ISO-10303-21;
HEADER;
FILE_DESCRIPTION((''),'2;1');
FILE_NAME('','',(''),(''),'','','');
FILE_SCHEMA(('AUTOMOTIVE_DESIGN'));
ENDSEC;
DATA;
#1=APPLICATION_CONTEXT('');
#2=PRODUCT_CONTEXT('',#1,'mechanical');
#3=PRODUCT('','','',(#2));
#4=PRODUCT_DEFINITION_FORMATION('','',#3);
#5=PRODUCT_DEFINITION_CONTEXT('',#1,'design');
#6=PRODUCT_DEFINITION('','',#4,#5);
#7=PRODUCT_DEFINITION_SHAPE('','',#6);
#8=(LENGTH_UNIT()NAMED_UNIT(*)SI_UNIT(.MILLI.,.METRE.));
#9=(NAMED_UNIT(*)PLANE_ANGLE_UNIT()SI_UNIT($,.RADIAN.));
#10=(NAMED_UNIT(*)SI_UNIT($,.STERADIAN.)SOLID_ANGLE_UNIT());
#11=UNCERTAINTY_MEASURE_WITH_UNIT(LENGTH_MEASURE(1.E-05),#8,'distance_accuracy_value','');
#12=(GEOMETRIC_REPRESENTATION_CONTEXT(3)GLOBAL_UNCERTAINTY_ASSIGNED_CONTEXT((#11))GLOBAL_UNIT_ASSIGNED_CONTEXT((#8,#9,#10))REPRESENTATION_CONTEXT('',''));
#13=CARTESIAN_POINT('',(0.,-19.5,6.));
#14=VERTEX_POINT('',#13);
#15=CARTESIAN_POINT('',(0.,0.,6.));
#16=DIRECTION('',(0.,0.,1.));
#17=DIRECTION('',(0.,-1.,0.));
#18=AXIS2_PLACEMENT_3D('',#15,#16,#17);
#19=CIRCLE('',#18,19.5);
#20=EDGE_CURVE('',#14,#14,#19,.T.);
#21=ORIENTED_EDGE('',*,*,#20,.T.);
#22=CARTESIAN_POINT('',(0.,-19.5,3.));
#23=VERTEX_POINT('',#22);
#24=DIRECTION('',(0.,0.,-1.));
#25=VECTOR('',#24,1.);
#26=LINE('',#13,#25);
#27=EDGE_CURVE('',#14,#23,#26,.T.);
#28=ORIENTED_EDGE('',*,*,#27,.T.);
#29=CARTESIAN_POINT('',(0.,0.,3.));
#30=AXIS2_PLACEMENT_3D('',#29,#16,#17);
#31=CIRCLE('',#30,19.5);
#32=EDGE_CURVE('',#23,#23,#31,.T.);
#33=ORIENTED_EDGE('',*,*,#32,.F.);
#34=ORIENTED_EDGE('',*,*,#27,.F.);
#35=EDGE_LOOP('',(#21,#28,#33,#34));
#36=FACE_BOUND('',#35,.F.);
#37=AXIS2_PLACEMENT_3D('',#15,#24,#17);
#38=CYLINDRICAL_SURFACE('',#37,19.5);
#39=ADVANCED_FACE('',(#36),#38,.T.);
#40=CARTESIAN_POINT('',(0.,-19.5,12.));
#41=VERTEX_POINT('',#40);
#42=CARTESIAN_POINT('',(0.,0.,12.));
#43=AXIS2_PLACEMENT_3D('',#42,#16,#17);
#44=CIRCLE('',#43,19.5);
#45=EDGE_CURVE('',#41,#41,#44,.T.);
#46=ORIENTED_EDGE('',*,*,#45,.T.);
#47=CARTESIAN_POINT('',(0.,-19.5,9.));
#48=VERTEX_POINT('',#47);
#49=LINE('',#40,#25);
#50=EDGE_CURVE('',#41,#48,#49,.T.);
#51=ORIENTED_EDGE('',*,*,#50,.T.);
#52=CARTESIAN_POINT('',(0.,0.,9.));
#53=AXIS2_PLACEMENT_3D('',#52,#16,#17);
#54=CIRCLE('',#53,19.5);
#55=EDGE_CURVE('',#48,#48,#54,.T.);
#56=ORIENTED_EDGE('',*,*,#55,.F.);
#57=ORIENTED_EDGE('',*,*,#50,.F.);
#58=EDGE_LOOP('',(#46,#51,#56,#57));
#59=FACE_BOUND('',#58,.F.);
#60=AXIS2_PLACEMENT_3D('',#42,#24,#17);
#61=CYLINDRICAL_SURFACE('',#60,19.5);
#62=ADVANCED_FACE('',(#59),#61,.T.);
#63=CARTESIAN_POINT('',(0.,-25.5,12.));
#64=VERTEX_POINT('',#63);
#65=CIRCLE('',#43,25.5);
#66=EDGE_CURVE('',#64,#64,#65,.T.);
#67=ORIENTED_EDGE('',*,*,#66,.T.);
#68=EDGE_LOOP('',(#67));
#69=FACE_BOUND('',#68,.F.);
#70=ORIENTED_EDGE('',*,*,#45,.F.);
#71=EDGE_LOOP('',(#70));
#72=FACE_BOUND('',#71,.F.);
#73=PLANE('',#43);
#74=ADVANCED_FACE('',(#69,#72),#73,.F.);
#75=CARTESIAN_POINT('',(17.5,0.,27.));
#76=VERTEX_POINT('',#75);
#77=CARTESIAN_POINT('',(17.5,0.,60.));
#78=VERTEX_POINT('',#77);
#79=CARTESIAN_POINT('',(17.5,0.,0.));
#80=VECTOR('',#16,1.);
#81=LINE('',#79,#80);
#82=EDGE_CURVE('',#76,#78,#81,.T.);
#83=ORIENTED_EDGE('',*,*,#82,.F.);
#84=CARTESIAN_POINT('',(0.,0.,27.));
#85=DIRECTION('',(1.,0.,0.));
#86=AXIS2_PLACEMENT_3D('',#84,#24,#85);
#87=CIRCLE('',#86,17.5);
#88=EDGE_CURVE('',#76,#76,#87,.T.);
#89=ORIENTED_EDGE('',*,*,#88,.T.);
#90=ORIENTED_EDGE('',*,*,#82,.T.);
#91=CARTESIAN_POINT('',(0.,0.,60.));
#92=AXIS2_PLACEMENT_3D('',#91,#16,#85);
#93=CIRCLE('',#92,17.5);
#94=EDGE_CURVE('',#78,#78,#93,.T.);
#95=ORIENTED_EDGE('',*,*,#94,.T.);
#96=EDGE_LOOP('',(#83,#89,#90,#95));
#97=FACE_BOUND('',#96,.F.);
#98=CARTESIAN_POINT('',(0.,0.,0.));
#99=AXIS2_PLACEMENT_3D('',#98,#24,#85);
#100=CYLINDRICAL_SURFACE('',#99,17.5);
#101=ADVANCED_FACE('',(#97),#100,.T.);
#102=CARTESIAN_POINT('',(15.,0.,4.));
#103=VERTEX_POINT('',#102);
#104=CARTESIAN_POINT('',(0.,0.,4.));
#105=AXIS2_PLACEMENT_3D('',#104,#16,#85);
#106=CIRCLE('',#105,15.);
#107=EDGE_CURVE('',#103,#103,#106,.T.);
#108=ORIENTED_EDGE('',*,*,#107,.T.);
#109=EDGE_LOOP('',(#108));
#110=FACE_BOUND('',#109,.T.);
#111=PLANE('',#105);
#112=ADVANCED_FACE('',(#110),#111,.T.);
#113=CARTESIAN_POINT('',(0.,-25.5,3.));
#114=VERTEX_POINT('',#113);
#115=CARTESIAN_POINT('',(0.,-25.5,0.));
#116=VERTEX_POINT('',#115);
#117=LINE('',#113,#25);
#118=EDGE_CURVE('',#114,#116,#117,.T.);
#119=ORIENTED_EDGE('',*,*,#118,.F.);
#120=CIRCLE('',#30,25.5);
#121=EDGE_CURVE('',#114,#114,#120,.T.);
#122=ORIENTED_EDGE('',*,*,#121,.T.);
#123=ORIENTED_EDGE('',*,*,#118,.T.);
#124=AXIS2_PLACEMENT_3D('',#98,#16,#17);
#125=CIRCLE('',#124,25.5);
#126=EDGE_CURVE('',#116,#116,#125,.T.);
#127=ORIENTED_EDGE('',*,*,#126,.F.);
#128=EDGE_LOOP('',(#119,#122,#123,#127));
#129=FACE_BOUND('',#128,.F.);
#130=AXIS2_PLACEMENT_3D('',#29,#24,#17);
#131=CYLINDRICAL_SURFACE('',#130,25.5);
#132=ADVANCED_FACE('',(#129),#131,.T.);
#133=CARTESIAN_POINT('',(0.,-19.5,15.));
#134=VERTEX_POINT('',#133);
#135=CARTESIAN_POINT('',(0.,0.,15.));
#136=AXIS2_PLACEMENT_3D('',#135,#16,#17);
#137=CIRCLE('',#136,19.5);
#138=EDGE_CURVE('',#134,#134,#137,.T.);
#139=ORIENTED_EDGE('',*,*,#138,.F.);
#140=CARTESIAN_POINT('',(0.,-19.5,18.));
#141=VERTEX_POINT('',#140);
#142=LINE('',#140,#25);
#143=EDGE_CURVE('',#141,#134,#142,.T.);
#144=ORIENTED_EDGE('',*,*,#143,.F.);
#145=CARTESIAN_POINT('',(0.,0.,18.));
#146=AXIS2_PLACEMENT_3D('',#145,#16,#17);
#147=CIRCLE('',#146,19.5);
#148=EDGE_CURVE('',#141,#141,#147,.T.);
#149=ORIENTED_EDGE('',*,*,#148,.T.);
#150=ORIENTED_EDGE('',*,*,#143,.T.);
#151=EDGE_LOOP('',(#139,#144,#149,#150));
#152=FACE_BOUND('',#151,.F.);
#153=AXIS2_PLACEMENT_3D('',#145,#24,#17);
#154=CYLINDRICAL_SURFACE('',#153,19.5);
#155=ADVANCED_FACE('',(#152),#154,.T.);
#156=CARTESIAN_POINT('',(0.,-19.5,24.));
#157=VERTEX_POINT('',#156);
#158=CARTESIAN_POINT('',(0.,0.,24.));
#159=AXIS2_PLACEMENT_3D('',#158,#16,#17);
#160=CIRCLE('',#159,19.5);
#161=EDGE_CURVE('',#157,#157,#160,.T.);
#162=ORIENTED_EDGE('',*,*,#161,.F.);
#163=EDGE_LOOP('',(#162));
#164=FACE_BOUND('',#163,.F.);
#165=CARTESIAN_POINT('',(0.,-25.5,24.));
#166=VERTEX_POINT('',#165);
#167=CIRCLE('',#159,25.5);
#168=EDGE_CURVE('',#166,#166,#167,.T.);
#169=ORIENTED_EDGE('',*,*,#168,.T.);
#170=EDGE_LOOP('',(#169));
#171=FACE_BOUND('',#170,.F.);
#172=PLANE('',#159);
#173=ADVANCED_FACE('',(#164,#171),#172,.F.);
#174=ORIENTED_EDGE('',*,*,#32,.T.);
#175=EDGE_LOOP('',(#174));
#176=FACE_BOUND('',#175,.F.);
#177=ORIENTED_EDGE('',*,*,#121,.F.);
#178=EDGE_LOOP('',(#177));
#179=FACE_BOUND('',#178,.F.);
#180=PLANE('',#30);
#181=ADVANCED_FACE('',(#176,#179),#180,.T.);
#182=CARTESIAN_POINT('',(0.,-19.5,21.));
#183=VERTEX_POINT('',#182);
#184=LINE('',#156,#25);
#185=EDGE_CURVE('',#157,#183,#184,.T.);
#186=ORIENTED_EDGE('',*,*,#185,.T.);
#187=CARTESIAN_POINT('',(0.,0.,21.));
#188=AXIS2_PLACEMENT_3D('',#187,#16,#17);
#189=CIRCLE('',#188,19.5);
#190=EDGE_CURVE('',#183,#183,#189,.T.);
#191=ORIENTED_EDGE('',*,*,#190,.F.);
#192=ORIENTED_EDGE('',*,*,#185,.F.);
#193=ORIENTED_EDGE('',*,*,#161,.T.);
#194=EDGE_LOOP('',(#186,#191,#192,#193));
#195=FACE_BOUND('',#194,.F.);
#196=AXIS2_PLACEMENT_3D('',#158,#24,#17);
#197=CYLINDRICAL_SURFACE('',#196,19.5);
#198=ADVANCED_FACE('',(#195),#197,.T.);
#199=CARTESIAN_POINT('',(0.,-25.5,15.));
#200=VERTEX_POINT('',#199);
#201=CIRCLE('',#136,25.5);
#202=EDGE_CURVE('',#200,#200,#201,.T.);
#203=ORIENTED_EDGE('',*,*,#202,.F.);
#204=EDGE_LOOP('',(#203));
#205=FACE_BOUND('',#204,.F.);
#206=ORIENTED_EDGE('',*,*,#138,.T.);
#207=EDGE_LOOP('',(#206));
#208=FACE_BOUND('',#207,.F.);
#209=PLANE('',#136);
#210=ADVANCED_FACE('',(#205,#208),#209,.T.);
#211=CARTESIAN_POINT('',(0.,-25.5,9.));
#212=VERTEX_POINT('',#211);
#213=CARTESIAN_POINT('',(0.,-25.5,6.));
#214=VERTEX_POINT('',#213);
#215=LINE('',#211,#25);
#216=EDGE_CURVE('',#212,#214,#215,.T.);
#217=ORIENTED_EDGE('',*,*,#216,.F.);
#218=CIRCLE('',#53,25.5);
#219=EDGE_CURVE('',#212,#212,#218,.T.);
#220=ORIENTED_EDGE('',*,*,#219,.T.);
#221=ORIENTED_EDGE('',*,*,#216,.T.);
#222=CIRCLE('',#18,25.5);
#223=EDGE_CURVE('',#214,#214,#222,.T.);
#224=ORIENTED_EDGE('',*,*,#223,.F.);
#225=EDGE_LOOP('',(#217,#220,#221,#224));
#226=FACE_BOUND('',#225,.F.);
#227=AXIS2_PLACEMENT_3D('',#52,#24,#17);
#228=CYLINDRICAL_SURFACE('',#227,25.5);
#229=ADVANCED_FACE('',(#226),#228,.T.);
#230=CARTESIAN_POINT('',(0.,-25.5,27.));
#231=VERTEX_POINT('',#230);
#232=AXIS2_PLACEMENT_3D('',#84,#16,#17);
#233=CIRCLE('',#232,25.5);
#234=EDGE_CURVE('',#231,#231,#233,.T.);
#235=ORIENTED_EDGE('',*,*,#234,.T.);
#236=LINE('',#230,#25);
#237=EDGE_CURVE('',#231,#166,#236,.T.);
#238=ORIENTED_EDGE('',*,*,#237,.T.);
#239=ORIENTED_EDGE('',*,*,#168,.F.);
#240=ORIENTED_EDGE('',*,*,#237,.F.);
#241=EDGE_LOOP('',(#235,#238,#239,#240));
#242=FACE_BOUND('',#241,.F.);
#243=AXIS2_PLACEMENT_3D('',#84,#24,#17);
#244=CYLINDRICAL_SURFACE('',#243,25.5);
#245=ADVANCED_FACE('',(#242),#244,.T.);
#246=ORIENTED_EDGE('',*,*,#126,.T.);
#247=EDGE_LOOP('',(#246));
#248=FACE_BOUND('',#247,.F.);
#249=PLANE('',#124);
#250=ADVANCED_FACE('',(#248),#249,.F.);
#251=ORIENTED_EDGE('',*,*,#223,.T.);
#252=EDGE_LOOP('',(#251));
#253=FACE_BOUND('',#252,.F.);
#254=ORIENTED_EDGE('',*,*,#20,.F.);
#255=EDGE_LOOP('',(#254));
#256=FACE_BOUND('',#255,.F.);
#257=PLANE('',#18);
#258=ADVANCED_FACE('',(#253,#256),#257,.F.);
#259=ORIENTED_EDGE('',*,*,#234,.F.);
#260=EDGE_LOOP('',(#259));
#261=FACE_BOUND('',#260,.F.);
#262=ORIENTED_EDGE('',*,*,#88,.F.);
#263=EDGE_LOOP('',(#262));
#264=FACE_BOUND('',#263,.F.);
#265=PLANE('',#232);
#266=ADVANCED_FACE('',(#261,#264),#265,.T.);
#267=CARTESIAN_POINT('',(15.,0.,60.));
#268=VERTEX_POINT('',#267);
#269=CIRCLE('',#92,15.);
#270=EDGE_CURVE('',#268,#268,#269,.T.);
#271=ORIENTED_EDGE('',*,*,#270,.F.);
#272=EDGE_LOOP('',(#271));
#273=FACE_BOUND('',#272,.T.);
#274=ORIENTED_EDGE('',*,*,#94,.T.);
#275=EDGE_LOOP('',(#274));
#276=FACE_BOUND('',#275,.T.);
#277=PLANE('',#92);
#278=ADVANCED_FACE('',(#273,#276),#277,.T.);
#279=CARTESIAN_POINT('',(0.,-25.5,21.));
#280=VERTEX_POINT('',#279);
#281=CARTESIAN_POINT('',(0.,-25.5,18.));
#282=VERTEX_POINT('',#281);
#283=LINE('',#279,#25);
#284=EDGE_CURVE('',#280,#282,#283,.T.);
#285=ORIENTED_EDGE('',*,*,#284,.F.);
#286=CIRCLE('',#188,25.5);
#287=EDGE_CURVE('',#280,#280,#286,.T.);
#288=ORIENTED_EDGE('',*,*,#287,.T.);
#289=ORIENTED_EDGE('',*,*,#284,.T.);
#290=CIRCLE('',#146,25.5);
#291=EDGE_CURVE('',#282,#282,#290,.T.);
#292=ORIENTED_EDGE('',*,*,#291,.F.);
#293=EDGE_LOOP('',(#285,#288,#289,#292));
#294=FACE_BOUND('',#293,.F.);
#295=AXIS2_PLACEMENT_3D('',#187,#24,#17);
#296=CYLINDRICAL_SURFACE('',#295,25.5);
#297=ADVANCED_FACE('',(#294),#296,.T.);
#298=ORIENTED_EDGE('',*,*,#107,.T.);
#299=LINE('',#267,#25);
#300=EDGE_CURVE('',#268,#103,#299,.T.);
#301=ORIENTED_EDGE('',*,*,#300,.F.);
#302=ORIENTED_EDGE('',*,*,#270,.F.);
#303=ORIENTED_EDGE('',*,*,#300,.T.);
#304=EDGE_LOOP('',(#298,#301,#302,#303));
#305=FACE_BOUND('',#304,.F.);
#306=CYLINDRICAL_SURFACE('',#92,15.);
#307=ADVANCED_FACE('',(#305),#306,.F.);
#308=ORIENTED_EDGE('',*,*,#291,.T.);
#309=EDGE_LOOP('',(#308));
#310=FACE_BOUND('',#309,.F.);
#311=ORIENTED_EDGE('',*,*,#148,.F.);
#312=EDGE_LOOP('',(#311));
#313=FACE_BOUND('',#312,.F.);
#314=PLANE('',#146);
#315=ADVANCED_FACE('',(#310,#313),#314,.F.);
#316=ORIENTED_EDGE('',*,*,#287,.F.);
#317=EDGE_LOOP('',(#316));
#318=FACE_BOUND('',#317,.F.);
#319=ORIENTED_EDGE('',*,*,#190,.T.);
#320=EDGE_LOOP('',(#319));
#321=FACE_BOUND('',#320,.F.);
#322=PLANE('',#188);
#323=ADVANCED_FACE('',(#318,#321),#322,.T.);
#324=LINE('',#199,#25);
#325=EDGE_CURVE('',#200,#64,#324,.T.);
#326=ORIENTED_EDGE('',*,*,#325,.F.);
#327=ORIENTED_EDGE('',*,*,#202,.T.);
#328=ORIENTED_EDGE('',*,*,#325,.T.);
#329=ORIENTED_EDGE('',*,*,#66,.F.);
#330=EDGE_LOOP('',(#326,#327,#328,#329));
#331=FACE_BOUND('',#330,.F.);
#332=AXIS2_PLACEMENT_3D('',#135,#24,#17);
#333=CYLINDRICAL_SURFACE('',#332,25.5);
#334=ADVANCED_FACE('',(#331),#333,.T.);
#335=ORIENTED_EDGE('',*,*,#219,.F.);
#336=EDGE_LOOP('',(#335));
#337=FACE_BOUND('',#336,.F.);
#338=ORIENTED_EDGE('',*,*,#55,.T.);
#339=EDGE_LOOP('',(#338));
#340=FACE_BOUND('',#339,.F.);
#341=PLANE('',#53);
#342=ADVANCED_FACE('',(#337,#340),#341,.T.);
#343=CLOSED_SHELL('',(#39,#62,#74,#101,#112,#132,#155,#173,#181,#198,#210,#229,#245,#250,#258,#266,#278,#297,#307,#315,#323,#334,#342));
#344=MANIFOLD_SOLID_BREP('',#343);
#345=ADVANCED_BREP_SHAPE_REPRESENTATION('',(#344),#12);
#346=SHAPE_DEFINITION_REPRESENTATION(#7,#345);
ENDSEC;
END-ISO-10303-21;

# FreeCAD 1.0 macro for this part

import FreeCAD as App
import Part
import Sketcher
Q = App.Units.Quantity


def add_polygon(sketch, points):
    """Adds a closed chain of lines whose ends are joined by coincident constraints."""
    first, n = sketch.GeometryCount, len(points)
    for a, b in zip(points, points[1:] + points[:1]):
        sketch.addGeometry(Part.LineSegment(App.Vector(*a, 0), App.Vector(*b, 0)), False)
    for i in range(n):
        sketch.addConstraint(Sketcher.Constraint("Coincident", first + i, 2, first + (i + 1) % n, 1))

doc = App.newDocument("Part")
body = doc.addObject("PartDesign::Body", "Body")

# Sketch on XY plane
sketch1 = doc.addObject("Sketcher::SketchObject", "Sketch")
body.addObject(sketch1)
sketch1.AttachmentSupport = (doc.XY_Plane, [""])
sketch1.MapMode = "FlatFace"
sketch1.addGeometry(Part.Circle(App.Vector(0, 0, 0), App.Vector(0, 0, 1), 18), False)
sketch1.addConstraint(Sketcher.Constraint("Coincident", 0, 3, -1, 1))
sketch1.addConstraint(Sketcher.Constraint("Diameter", 0, Q("35 mm")))
pad1 = doc.addObject("PartDesign::Pad", "Pad")
body.addObject(pad1)
pad1.Profile = sketch1
pad1.Length = 60

# Sketch on XY plane
sketch2 = doc.addObject("Sketcher::SketchObject", "Sketch001")
body.addObject(sketch2)
sketch2.AttachmentSupport = (doc.XY_Plane, [""])
sketch2.MapMode = "FlatFace"
sketch2.AttachmentOffset = App.Placement(App.Vector(0, 0, 60), App.Rotation())
sketch2.addGeometry(Part.Circle(App.Vector(0, 0, 0), App.Vector(0, 0, 1), 15), False)
sketch2.addConstraint(Sketcher.Constraint("Coincident", 0, 3, -1, 1))
sketch2.addConstraint(Sketcher.Constraint("Diameter", 0, Q("30 mm")))
pocket1 = doc.addObject("PartDesign::Pocket", "Pocket")
body.addObject(pocket1)
pocket1.Profile = sketch2
pocket1.Length = 56

# Sketch on YZ plane
sketch3 = doc.addObject("Sketcher::SketchObject", "Sketch002")
body.addObject(sketch3)
sketch3.AttachmentSupport = (doc.YZ_Plane, [""])
sketch3.MapMode = "FlatFace"
add_polygon(sketch3, [(-25.5, 3), (-25.5, 0), (-17.5, 0), (-17.5, 27), (-25.5, 27), (-25.5, 24), (-19.5, 24), (-19.5, 21), (-25.5, 21), (-25.5, 18), (-19.5, 18), (-19.5, 15), (-25.5, 15), (-25.5, 12), (-19.5, 12), (-19.5, 9), (-25.5, 9), (-25.5, 6), (-19.5, 6), (-19.5, 3)])  # lines 0-19
sketch3.addConstraint(Sketcher.Constraint("Vertical", 0))
sketch3.addConstraint(Sketcher.Constraint("Horizontal", 1))
sketch3.addConstraint(Sketcher.Constraint("Vertical", 2))
sketch3.addConstraint(Sketcher.Constraint("Horizontal", 3))
sketch3.addConstraint(Sketcher.Constraint("Vertical", 4))
sketch3.addConstraint(Sketcher.Constraint("Horizontal", 5))
sketch3.addConstraint(Sketcher.Constraint("Vertical", 6))
sketch3.addConstraint(Sketcher.Constraint("Horizontal", 7))
sketch3.addConstraint(Sketcher.Constraint("Vertical", 8))
sketch3.addConstraint(Sketcher.Constraint("Horizontal", 9))
sketch3.addConstraint(Sketcher.Constraint("Vertical", 10))
sketch3.addConstraint(Sketcher.Constraint("Horizontal", 11))
sketch3.addConstraint(Sketcher.Constraint("Vertical", 12))
sketch3.addConstraint(Sketcher.Constraint("Horizontal", 13))
sketch3.addConstraint(Sketcher.Constraint("Vertical", 14))
sketch3.addConstraint(Sketcher.Constraint("Horizontal", 15))
sketch3.addConstraint(Sketcher.Constraint("Vertical", 16))
sketch3.addConstraint(Sketcher.Constraint("Horizontal", 17))
sketch3.addConstraint(Sketcher.Constraint("Vertical", 18))
sketch3.addConstraint(Sketcher.Constraint("Horizontal", 19))
sketch3.addConstraint(Sketcher.Constraint("PointOnObject", 0, 2, -1))
sketch3.addConstraint(Sketcher.Constraint("Vertical", 0, 2, 3, 2))
sketch3.addConstraint(Sketcher.Constraint("Vertical", 4, 2, 7, 2))
sketch3.addConstraint(Sketcher.Constraint("Vertical", 6, 2, 9, 2))
sketch3.addConstraint(Sketcher.Constraint("Vertical", 8, 2, 11, 2))
sketch3.addConstraint(Sketcher.Constraint("Vertical", 10, 2, 13, 2))
sketch3.addConstraint(Sketcher.Constraint("Vertical", 12, 2, 15, 2))
sketch3.addConstraint(Sketcher.Constraint("Vertical", 14, 2, 17, 2))
sketch3.addConstraint(Sketcher.Constraint("Equal", 0, 4))
sketch3.addConstraint(Sketcher.Constraint("Equal", 4, 6))
sketch3.addConstraint(Sketcher.Constraint("Equal", 6, 8))
sketch3.addConstraint(Sketcher.Constraint("Equal", 8, 10))
sketch3.addConstraint(Sketcher.Constraint("Equal", 10, 12))
sketch3.addConstraint(Sketcher.Constraint("Equal", 12, 14))
sketch3.addConstraint(Sketcher.Constraint("Equal", 14, 16))
sketch3.addConstraint(Sketcher.Constraint("Equal", 16, 18))
sketch3.addConstraint(Sketcher.Constraint("DistanceX", 1, 1, 1, 2, Q("8 mm")))
sketch3.addConstraint(Sketcher.Constraint("DistanceX", 5, 1, 5, 2, Q("6 mm")))
sketch3.addConstraint(Sketcher.Constraint("DistanceY", 0, 2, 0, 1, Q("3 mm")))
sketch3.addConstraint(Sketcher.Constraint("DistanceX", 0, 2, -1, 1, Q("25.5 mm")))
revolution = doc.addObject("PartDesign::Revolution", "Revolution")
body.addObject(revolution)
revolution.Profile = sketch3
revolution.ReferenceAxis = (sketch3, ["V_Axis"])
revolution.Angle = 360

doc.recompute()
